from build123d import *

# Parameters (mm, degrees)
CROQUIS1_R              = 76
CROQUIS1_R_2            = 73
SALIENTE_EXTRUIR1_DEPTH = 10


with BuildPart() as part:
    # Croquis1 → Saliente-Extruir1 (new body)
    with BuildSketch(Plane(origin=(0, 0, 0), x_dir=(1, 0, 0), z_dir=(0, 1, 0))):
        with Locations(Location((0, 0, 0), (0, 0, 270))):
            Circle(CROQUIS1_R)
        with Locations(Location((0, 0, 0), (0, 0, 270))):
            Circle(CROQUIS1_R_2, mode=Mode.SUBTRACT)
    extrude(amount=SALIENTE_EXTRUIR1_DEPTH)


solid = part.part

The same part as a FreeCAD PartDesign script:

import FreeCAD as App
import Part
import Sketcher
from FreeCAD import Vector

doc = App.newDocument("Part")
params = doc.addObject("Spreadsheet::Sheet", "Params")
for row, (alias, value) in enumerate([
    ("sketch1_diameter", "152 mm"),
    ("sketch1_diameter2", "146 mm"),
    ("pad1_length", "10 mm"),
], start=1):
    params.set(f"A{row}", alias)
    params.set(f"B{row}", "=" + value)
    params.setAlias(f"B{row}", alias)

body = doc.addObject("PartDesign::Body", "Body")

# Sketch on XZ plane
sketch1 = doc.addObject("Sketcher::SketchObject", "Sketch")
body.addObject(sketch1)
sketch1.AttachmentSupport = (doc.XZ_Plane, [""])
sketch1.MapMode = "FlatFace"
sketch1.addGeometry(Part.Circle(Vector(0, 0, 0), Vector(0, 0, 1), 76), False)
sketch1.addGeometry(Part.Circle(Vector(0, 0, 0), Vector(0, 0, 1), 73), False)
sketch1.addConstraint(Sketcher.Constraint("Coincident", 0, 3, -1, 1))
sketch1.addConstraint(Sketcher.Constraint("Coincident", 1, 3, -1, 1))
sketch1.addConstraint(Sketcher.Constraint("Diameter", 0, 152.0))
sketch1.addConstraint(Sketcher.Constraint("Diameter", 1, 146.0))
sketch1.setExpression("Constraints[2]", "Params.sketch1_diameter")
sketch1.setExpression("Constraints[3]", "Params.sketch1_diameter2")
pad1 = doc.addObject("PartDesign::Pad", "Pad")
body.addObject(pad1)
pad1.Profile = sketch1
pad1.setExpression("Length", "Params.pad1_length")
pad1.Reversed = True

doc.recompute()
